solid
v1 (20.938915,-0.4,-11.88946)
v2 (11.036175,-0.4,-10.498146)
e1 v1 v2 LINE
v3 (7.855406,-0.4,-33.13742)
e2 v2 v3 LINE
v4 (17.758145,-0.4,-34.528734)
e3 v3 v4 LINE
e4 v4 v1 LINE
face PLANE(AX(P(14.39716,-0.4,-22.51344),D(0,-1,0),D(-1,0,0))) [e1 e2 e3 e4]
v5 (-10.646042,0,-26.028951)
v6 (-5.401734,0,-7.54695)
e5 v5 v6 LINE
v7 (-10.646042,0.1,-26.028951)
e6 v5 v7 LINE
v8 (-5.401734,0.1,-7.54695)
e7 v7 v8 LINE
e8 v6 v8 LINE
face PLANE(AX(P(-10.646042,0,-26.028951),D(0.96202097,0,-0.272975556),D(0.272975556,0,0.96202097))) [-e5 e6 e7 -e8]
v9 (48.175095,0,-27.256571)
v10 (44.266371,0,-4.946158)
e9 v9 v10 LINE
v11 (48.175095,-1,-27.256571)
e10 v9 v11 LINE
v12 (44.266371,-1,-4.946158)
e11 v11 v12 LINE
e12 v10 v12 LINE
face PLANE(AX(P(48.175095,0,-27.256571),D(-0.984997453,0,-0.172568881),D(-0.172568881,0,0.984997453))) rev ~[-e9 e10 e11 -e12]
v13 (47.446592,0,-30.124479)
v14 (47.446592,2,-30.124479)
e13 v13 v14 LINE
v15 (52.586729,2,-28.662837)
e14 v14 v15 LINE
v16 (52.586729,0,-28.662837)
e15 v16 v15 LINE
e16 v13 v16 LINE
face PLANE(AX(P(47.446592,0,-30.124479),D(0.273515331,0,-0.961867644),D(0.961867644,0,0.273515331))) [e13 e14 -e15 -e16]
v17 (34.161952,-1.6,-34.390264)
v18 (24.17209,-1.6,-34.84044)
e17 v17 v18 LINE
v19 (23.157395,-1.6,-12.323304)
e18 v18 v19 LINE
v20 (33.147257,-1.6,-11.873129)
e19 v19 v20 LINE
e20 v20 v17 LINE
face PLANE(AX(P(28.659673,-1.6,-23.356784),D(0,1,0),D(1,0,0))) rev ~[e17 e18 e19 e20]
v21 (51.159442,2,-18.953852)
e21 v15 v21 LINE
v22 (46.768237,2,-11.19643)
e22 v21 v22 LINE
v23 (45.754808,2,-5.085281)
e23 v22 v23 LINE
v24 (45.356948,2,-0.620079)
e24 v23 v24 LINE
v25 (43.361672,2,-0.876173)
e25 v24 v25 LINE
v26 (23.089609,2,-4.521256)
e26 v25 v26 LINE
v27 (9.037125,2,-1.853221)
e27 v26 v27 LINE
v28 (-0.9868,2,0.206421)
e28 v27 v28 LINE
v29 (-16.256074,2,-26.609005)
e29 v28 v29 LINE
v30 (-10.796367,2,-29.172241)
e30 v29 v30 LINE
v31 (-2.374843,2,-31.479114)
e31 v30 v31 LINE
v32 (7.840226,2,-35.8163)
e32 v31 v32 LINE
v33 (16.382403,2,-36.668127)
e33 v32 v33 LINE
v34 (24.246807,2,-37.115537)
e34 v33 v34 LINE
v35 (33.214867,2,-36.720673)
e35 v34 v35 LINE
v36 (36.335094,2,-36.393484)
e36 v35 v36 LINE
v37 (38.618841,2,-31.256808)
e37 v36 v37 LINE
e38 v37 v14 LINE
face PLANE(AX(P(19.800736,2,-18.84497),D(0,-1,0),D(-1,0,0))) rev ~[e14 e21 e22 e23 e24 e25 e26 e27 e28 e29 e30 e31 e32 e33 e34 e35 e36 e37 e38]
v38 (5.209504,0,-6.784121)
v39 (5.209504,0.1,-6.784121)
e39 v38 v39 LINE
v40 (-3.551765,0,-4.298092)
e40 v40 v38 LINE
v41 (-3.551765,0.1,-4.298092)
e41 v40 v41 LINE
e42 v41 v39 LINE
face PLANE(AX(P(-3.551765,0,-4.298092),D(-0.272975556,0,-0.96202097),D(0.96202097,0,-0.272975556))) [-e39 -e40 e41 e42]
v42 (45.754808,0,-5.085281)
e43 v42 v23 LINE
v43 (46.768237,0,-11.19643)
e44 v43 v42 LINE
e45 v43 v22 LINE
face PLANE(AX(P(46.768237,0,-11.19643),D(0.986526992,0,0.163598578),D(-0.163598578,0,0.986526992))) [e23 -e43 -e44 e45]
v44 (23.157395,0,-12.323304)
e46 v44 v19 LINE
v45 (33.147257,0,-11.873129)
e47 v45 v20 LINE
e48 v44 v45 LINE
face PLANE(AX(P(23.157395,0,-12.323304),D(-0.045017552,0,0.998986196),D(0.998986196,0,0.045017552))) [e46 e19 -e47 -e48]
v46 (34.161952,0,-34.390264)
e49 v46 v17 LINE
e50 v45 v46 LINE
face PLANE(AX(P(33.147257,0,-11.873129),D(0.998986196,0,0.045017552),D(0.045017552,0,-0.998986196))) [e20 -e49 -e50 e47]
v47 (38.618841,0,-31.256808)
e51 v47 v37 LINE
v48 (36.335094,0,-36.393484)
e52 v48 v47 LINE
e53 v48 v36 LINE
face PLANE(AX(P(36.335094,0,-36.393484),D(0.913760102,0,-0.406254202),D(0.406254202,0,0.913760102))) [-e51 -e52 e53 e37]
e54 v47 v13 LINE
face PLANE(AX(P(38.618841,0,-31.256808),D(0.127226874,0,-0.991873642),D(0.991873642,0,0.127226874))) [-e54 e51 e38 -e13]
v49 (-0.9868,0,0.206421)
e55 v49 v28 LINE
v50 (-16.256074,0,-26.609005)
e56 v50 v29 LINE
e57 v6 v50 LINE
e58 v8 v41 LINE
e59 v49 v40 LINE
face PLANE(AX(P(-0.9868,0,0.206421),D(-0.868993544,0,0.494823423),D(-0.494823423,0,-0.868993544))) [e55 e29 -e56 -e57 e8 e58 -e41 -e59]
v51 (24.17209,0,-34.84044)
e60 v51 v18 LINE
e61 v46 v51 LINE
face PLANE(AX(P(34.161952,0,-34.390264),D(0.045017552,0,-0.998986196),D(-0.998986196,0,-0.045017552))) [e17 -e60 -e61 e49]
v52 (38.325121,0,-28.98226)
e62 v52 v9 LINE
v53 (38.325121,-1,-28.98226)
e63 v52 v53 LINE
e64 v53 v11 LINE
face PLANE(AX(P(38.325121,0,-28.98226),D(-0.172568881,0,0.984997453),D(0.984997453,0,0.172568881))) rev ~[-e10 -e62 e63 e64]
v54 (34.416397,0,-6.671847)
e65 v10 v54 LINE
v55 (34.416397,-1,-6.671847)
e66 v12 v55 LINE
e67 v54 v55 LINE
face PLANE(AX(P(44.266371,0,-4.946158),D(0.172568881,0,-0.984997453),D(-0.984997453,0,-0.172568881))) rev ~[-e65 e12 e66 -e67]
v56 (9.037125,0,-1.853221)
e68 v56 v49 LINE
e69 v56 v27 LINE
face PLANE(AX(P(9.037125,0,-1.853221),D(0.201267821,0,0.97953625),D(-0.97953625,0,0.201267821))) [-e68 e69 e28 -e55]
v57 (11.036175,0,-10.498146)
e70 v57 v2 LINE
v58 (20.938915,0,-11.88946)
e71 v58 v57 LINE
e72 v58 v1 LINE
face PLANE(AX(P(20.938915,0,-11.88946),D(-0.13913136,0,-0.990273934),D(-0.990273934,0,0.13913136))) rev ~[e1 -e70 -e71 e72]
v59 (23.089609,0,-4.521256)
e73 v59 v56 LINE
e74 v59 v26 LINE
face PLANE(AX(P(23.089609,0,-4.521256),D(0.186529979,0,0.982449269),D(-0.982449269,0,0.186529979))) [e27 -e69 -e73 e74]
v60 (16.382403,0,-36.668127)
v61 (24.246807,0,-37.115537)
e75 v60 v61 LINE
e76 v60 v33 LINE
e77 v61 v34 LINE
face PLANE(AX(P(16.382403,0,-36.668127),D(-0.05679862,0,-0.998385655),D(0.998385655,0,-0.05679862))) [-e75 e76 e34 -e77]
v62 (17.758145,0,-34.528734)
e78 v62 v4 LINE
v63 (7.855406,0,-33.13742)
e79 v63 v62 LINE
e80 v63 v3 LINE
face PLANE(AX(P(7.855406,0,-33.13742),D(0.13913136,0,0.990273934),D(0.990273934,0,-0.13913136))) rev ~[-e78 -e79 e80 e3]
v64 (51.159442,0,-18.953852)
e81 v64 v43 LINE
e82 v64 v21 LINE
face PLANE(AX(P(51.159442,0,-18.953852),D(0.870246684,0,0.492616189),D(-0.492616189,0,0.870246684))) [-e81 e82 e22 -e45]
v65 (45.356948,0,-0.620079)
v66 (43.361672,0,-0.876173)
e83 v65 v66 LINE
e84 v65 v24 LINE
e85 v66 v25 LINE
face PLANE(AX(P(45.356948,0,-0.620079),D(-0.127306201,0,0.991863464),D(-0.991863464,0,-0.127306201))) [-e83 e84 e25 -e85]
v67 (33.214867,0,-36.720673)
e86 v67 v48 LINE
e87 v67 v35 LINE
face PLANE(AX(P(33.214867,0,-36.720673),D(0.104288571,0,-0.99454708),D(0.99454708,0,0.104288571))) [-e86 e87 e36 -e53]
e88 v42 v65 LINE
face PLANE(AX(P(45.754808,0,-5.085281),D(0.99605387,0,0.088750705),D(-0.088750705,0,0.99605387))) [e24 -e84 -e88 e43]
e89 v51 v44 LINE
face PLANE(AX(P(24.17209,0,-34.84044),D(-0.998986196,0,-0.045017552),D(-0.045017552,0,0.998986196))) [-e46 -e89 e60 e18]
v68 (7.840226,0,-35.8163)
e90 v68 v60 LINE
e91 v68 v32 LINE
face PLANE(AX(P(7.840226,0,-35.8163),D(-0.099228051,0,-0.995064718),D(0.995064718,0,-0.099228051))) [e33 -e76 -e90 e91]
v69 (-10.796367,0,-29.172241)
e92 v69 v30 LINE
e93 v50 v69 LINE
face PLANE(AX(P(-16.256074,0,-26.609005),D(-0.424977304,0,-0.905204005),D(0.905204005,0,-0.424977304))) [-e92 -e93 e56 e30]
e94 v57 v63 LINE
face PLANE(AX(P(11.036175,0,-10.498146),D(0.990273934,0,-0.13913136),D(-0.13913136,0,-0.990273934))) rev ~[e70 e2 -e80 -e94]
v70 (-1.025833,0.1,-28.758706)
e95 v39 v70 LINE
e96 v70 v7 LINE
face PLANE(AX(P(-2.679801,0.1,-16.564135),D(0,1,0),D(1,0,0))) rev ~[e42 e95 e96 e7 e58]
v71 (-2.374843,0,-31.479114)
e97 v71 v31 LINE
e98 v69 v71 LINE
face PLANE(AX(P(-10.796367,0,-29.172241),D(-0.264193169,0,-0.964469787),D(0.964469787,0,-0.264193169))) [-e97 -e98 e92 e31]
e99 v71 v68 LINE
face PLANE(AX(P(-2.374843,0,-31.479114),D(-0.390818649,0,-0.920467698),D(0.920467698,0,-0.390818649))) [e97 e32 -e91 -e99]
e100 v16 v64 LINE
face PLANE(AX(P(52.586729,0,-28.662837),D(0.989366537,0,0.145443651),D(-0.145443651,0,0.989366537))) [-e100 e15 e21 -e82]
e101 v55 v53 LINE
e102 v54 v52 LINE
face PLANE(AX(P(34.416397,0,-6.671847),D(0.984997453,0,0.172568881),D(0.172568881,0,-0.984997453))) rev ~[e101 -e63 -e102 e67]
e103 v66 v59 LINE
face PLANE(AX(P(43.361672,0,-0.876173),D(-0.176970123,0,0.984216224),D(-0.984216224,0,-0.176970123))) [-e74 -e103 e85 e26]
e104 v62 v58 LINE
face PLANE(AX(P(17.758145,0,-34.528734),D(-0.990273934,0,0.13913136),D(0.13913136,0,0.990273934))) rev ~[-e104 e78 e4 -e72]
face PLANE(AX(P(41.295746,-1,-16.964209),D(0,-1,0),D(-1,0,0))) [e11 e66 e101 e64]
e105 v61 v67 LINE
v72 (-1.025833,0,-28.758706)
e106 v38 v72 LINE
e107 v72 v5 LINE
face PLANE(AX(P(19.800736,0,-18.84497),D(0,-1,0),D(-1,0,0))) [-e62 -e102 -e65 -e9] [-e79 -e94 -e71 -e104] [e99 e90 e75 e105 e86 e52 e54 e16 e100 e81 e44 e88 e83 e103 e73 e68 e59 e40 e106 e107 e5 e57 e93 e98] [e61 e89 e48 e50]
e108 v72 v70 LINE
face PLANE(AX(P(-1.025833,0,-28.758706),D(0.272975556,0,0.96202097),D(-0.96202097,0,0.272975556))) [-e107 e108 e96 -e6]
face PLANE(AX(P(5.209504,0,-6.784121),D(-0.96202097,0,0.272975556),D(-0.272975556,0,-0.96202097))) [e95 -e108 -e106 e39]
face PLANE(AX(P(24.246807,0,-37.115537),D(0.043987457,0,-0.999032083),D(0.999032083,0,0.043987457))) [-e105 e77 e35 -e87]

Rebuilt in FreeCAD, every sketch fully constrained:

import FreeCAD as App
import Part
import Sketcher
Q = App.Units.Quantity

doc = App.newDocument("Part")
body = doc.addObject("PartDesign::Body", "Body")

# Sketch on XZ plane
sketch1 = body.newObject("Sketcher::SketchObject", "Sketch")
sketch1.AttachmentSupport = (doc.getObject("XZ_Plane"), [""])
sketch1.MapMode = "FlatFace"
sketch1.addGeometry([
    Part.LineSegment(App.Vector(-10.6, -26, 0), App.Vector(-5.4, -7.5, 0)),  # 0
    Part.LineSegment(App.Vector(-5.4, -7.5, 0), App.Vector(-3.6, -4.3, 0)),  # 1
    Part.LineSegment(App.Vector(-3.6, -4.3, 0), App.Vector(5.2, -6.8, 0)),  # 2
    Part.LineSegment(App.Vector(5.2, -6.8, 0), App.Vector(-1, -28.8, 0)),  # 3
    Part.LineSegment(App.Vector(-1, -28.8, 0), App.Vector(-10.6, -26, 0)),  # 4
], False)
sketch1.addConstraint([
    Sketcher.Constraint("Coincident", 0, 2, 1, 1),
    Sketcher.Constraint("Coincident", 1, 2, 2, 1),
    Sketcher.Constraint("Coincident", 2, 2, 3, 1),
    Sketcher.Constraint("Coincident", 3, 2, 4, 1),
    Sketcher.Constraint("Coincident", 4, 2, 0, 1),
    Sketcher.Constraint("Perpendicular", 0, 2),
    Sketcher.Constraint("Perpendicular", 2, 3),
    Sketcher.Constraint("Perpendicular", 3, 4),
    Sketcher.Constraint("Distance", 4, Q("10 mm")),
    Sketcher.Constraint("DistanceY", 4, 2, 0, 2, Q("18.482001 mm")),
    Sketcher.Constraint("DistanceX", 0, 2, 3, 2, Q("4.375901 mm")),
    Sketcher.Constraint("Distance", 2, Q("9.10715 mm")),
    Sketcher.Constraint("DistanceY", 0, 2, -1, 1, Q("7.54695 mm")),
    Sketcher.Constraint("DistanceY", 1, 2, -1, 1, Q("4.298092 mm")),
    Sketcher.Constraint("DistanceX", 0, 2, -1, 1, Q("5.401734 mm")),
])
pad1 = body.newObject("PartDesign::Pad", "Pad")
pad1.Profile = sketch1
pad1.Length = 0.1
pad1.Reversed = True
body2 = doc.addObject("PartDesign::Body", "Body001")

# Sketch on XZ plane
sketch2 = body2.newObject("Sketcher::SketchObject", "Sketch001")
sketch2.AttachmentSupport = (doc.getObject("XZ_Plane001"), [""])
sketch2.MapMode = "FlatFace"
sketch2.addGeometry([
    Part.LineSegment(App.Vector(8, -33, 0), App.Vector(11, -10, 0)),
    Part.LineSegment(App.Vector(11, -10, 0), App.Vector(21, -12, 0)),
    Part.LineSegment(App.Vector(21, -12, 0), App.Vector(18, -35, 0)),
    Part.LineSegment(App.Vector(18, -35, 0), App.Vector(8, -33, 0)),
], False)
sketch2.addConstraint([
    Sketcher.Constraint("Coincident", 0, 2, 1, 1),
    Sketcher.Constraint("Coincident", 1, 2, 2, 1),
    Sketcher.Constraint("Coincident", 2, 2, 3, 1),
    Sketcher.Constraint("Coincident", 3, 2, 0, 1),
    Sketcher.Constraint("Perpendicular", 0, 1),
    Sketcher.Constraint("Perpendicular", 1, 2),
    Sketcher.Constraint("Perpendicular", 2, 3),
    Sketcher.Constraint("Distance", 1, Q("10 mm")),
    Sketcher.Constraint("DistanceY", 1, 2, -1, 1, Q("11.88946 mm")),
    Sketcher.Constraint("DistanceY", 3, 2, -1, 1, Q("33.13742 mm")),
    Sketcher.Constraint("DistanceX", 0, 2, 1, 2, Q("9.902739 mm")),
    Sketcher.Constraint("DistanceX", -1, 1, 0, 2, Q("11.036175 mm")),
])
pad2 = body2.newObject("PartDesign::Pad", "Pad001")
pad2.Profile = sketch2
pad2.Length = 0.4
body3 = doc.addObject("PartDesign::Body", "Body002")

# Sketch on XZ plane
sketch3 = body3.newObject("Sketcher::SketchObject", "Sketch002")
sketch3.AttachmentSupport = (doc.getObject("XZ_Plane002"), [""])
sketch3.MapMode = "FlatFace"
sketch3.addGeometry([
    Part.LineSegment(App.Vector(33, -12, 0), App.Vector(34, -34, 0)),
    Part.LineSegment(App.Vector(34, -34, 0), App.Vector(24, -35, 0)),
    Part.LineSegment(App.Vector(24, -35, 0), App.Vector(23, -12, 0)),
    Part.LineSegment(App.Vector(23, -12, 0), App.Vector(33, -12, 0)),
], False)
sketch3.addConstraint([
    Sketcher.Constraint("Coincident", 0, 2, 1, 1),
    Sketcher.Constraint("Coincident", 1, 2, 2, 1),
    Sketcher.Constraint("Coincident", 2, 2, 3, 1),
    Sketcher.Constraint("Coincident", 3, 2, 0, 1),
    Sketcher.Constraint("Perpendicular", 0, 1),
    Sketcher.Constraint("Perpendicular", 1, 2),
    Sketcher.Constraint("Perpendicular", 2, 3),
    Sketcher.Constraint("Distance", 1, Q("10 mm")),
    Sketcher.Constraint("DistanceX", -1, 1, 0, 2, Q("34.161952 mm")),
    Sketcher.Constraint("DistanceX", -1, 1, 1, 2, Q("24.17209 mm")),
    Sketcher.Constraint("DistanceY", 1, 2, -1, 1, Q("34.84044 mm")),
    Sketcher.Constraint("DistanceY", 3, 2, -1, 1, Q("11.873129 mm")),
])
pad3 = body3.newObject("PartDesign::Pad", "Pad002")
pad3.Profile = sketch3
pad3.Length = 1.6
body4 = doc.addObject("PartDesign::Body", "Body003")

# Sketch on XZ plane
sketch4 = body4.newObject("Sketcher::SketchObject", "Sketch003")
sketch4.AttachmentSupport = (doc.getObject("XZ_Plane003"), [""])
sketch4.MapMode = "FlatFace"
sketch4.addGeometry([
    Part.LineSegment(App.Vector(38.325121, -28.98226, 0), App.Vector(34.416397, -6.671847, 0)),
    Part.LineSegment(App.Vector(34.416397, -6.671847, 0), App.Vector(44.266371, -4.946158, 0)),
    Part.LineSegment(App.Vector(44.266371, -4.946158, 0), App.Vector(48.175095, -27.256571, 0)),
    Part.LineSegment(App.Vector(48.175095, -27.256571, 0), App.Vector(38.325121, -28.98226, 0)),
], False)
sketch4.addConstraint([
    Sketcher.Constraint("Coincident", 0, 2, 1, 1),
    Sketcher.Constraint("Coincident", 1, 2, 2, 1),
    Sketcher.Constraint("Coincident", 2, 2, 3, 1),
    Sketcher.Constraint("Coincident", 3, 2, 0, 1),
    Sketcher.Constraint("Distance", 1, Q("10 mm")),
    Sketcher.Constraint("Distance", 3, Q("10 mm")),
    Sketcher.Constraint("DistanceX", 0, 2, 2, 2, Q("13.758698 mm")),
    Sketcher.Constraint("DistanceX", -1, 1, 1, 2, Q("44.266371 mm")),
    Sketcher.Constraint("DistanceY", 2, 2, -1, 1, Q("27.256571 mm")),
    Sketcher.Constraint("DistanceX", -1, 1, 3, 2, Q("38.325121 mm")),
    Sketcher.Constraint("DistanceY", 3, 2, -1, 1, Q("28.98226 mm")),
    Sketcher.Constraint("Distance", 0, Q("22.650225 mm")),
])
pad4 = body4.newObject("PartDesign::Pad", "Pad003")
pad4.Profile = sketch4
pad4.Length = 1
body.AllowCompound = True
doc.recompute()

boolean = body.newObject("PartDesign::Boolean", "Boolean")
boolean.Type = "Fuse"
boolean.addObjects([body2])
doc.recompute()

boolean2 = body.newObject("PartDesign::Boolean", "Boolean001")
boolean2.Type = "Fuse"
boolean2.addObjects([body3])
doc.recompute()

boolean3 = body.newObject("PartDesign::Boolean", "Boolean002")
boolean3.Type = "Fuse"
boolean3.addObjects([body4])

# Sketch on XZ plane
sketch5 = body.newObject("Sketcher::SketchObject", "Sketch004")
sketch5.AttachmentSupport = (doc.getObject("XZ_Plane"), [""])
sketch5.MapMode = "FlatFace"
sketch5.addGeometry([
    Part.LineSegment(App.Vector(-10.8, -29.2, 0), App.Vector(-16.3, -26.6, 0)),  # 0
    Part.LineSegment(App.Vector(-16.3, -26.6, 0), App.Vector(-1, 0.2, 0)),  # 1
    Part.LineSegment(App.Vector(-1, 0.2, 0), App.Vector(9, -1.9, 0)),  # 2
    Part.LineSegment(App.Vector(9, -1.9, 0), App.Vector(23.1, -4.5, 0)),  # 3
    Part.LineSegment(App.Vector(23.1, -4.5, 0), App.Vector(43.4, -0.9, 0)),  # 4
    Part.LineSegment(App.Vector(43.4, -0.9, 0), App.Vector(45.4, -0.6, 0)),  # 5
    Part.LineSegment(App.Vector(45.4, -0.6, 0), App.Vector(45.8, -5.1, 0)),  # 6
    Part.LineSegment(App.Vector(45.8, -5.1, 0), App.Vector(46.8, -11.2, 0)),  # 7
    Part.LineSegment(App.Vector(46.8, -11.2, 0), App.Vector(51.2, -19, 0)),  # 8
    Part.LineSegment(App.Vector(51.2, -19, 0), App.Vector(52.6, -28.7, 0)),  # 9
    Part.LineSegment(App.Vector(52.6, -28.7, 0), App.Vector(47.4, -30.1, 0)),  # 10
    Part.LineSegment(App.Vector(47.4, -30.1, 0), App.Vector(38.6, -31.3, 0)),  # 11
    Part.LineSegment(App.Vector(38.6, -31.3, 0), App.Vector(36.3, -36.4, 0)),  # 12
    Part.LineSegment(App.Vector(36.3, -36.4, 0), App.Vector(33.2, -36.7, 0)),  # 13
    Part.LineSegment(App.Vector(33.2, -36.7, 0), App.Vector(24.2, -37.1, 0)),  # 14
    Part.LineSegment(App.Vector(24.2, -37.1, 0), App.Vector(16.4, -36.7, 0)),  # 15
    Part.LineSegment(App.Vector(16.4, -36.7, 0), App.Vector(7.8, -35.8, 0)),  # 16
    Part.LineSegment(App.Vector(7.8, -35.8, 0), App.Vector(-2.4, -31.5, 0)),  # 17
    Part.LineSegment(App.Vector(-2.4, -31.5, 0), App.Vector(-10.8, -29.2, 0)),  # 18
], False)
sketch5.addConstraint([
    Sketcher.Constraint("Coincident", 0, 2, 1, 1),
    Sketcher.Constraint("Coincident", 1, 2, 2, 1),
    Sketcher.Constraint("Coincident", 2, 2, 3, 1),
    Sketcher.Constraint("Coincident", 3, 2, 4, 1),
    Sketcher.Constraint("Coincident", 4, 2, 5, 1),
    Sketcher.Constraint("Coincident", 5, 2, 6, 1),
    Sketcher.Constraint("Coincident", 6, 2, 7, 1),
    Sketcher.Constraint("Coincident", 7, 2, 8, 1),
    Sketcher.Constraint("Coincident", 8, 2, 9, 1),
    Sketcher.Constraint("Coincident", 9, 2, 10, 1),
    Sketcher.Constraint("Coincident", 10, 2, 11, 1),
    Sketcher.Constraint("Coincident", 11, 2, 12, 1),
    Sketcher.Constraint("Coincident", 12, 2, 13, 1),
    Sketcher.Constraint("Coincident", 13, 2, 14, 1),
    Sketcher.Constraint("Coincident", 14, 2, 15, 1),
    Sketcher.Constraint("Coincident", 15, 2, 16, 1),
    Sketcher.Constraint("Coincident", 16, 2, 17, 1),
    Sketcher.Constraint("Coincident", 17, 2, 18, 1),
    Sketcher.Constraint("Coincident", 18, 2, 0, 1),
    Sketcher.Constraint("DistanceX", 1, 2, -1, 1, Q("0.9868 mm")),
    Sketcher.Constraint("DistanceY", 16, 2, -1, 1, Q("35.8163 mm")),
    Sketcher.Constraint("DistanceX", 0, 2, 2, 2, Q("25.2932 mm")),
    Sketcher.Constraint("DistanceY", 5, 2, 1, 2, Q("0.8265 mm")),
    Sketcher.Constraint("DistanceX", 3, 2, 6, 2, Q("22.665199 mm")),
    Sketcher.Constraint("DistanceY", 6, 2, 1, 2, Q("5.291702 mm")),
    Sketcher.Constraint("DistanceY", 10, 2, 6, 2, Q("25.039198 mm")),
    Sketcher.Constraint("DistanceX", 11, 2, 8, 2, Q("12.540601 mm")),
    Sketcher.Constraint("DistanceY", 14, 2, 9, 2, Q("8.4527 mm")),
    Sketcher.Constraint("DistanceX", 0, 2, 16, 2, Q("24.0963 mm")),
    Sketcher.Constraint("Distance", 3, Q("14.30352 mm")),
    Sketcher.Constraint("Distance", 7, Q("6.194609 mm")),
    Sketcher.Constraint("Distance", 8, Q("8.914049 mm")),
    Sketcher.Constraint("Distance", 12, Q("5.621472 mm")),
    Sketcher.Constraint("Distance", 14, Q("8.976749 mm")),
    Sketcher.Constraint("Distance", 15, Q("7.87712 mm")),
    Sketcher.Constraint("DistanceY", -1, 1, 1, 2, Q("0.206421 mm")),
    Sketcher.Constraint("DistanceY", 2, 2, -1, 1, Q("1.853221 mm")),
    Sketcher.Constraint("DistanceX", -1, 1, 3, 2, Q("23.089609 mm")),
    Sketcher.Constraint("DistanceX", -1, 1, 4, 2, Q("43.361672 mm")),
    Sketcher.Constraint("DistanceY", 7, 2, -1, 1, Q("11.19643 mm")),
    Sketcher.Constraint("DistanceX", -1, 1, 8, 2, Q("51.159442 mm")),
    Sketcher.Constraint("DistanceX", -1, 1, 9, 2, Q("52.586729 mm")),
    Sketcher.Constraint("DistanceX", -1, 1, 10, 2, Q("47.446592 mm")),
    Sketcher.Constraint("DistanceY", 18, 2, -1, 1, Q("29.172241 mm")),
    Sketcher.Constraint("DistanceY", 0, 2, 3, 2, Q("22.087749 mm")),
    Sketcher.Constraint("DistanceY", 0, 2, 4, 2, Q("25.732832 mm")),
    Sketcher.Constraint("DistanceX", 3, 2, 5, 2, Q("22.267339 mm")),
    Sketcher.Constraint("DistanceX", 0, 2, 5, 2, Q("61.613022 mm")),
    Sketcher.Constraint("DistanceY", 9, 2, 5, 2, Q("28.042758 mm")),
    Sketcher.Constraint("DistanceY", 11, 2, 10, 2, Q("1.132329 mm")),
    Sketcher.Constraint("DistanceY", 13, 2, 12, 2, Q("0.327188 mm")),
    Sketcher.Constraint("DistanceX", 13, 2, 9, 2, Q("19.371862 mm")),
    Sketcher.Constraint("DistanceY", 13, 2, 8, 2, Q("17.766821 mm")),
    Sketcher.Constraint("DistanceY", 14, 2, 15, 2, Q("0.44741 mm")),
    Sketcher.Constraint("DistanceX", 17, 2, 16, 2, Q("10.215069 mm")),
    Sketcher.Constraint("DistanceY", 17, 2, 0, 2, Q("4.870109 mm")),
    Sketcher.Constraint("DistanceX", 18, 2, 15, 2, Q("27.17877 mm")),
])
pad5 = body.newObject("PartDesign::Pad", "Pad004")
pad5.Profile = sketch5
pad5.Length = 2
pad5.Reversed = True

# Sketch on XZ plane
sketch6 = body.newObject("Sketcher::SketchObject", "Sketch005")
sketch6.AttachmentSupport = (doc.getObject("XZ_Plane"), [""])
sketch6.MapMode = "FlatFace"
sketch6.addGeometry([
    Part.LineSegment(App.Vector(-10.6, -26, 0), App.Vector(-5.4, -7.5, 0)),  # 0
    Part.LineSegment(App.Vector(-5.4, -7.5, 0), App.Vector(-3.6, -4.3, 0)),  # 1
    Part.LineSegment(App.Vector(-3.6, -4.3, 0), App.Vector(5.2, -6.8, 0)),  # 2
    Part.LineSegment(App.Vector(5.2, -6.8, 0), App.Vector(-1, -28.8, 0)),  # 3
    Part.LineSegment(App.Vector(-1, -28.8, 0), App.Vector(-10.6, -26, 0)),  # 4
], False)
sketch6.addConstraint([
    Sketcher.Constraint("Coincident", 0, 2, 1, 1),
    Sketcher.Constraint("Coincident", 1, 2, 2, 1),
    Sketcher.Constraint("Coincident", 2, 2, 3, 1),
    Sketcher.Constraint("Coincident", 3, 2, 4, 1),
    Sketcher.Constraint("Coincident", 4, 2, 0, 1),
    Sketcher.Constraint("Perpendicular", 0, 2),
    Sketcher.Constraint("Perpendicular", 2, 3),
    Sketcher.Constraint("Perpendicular", 3, 4),
    Sketcher.Constraint("Distance", 4, Q("10 mm")),
    Sketcher.Constraint("DistanceY", 4, 2, 0, 2, Q("18.482001 mm")),
    Sketcher.Constraint("DistanceX", 0, 2, 3, 2, Q("4.375901 mm")),
    Sketcher.Constraint("Distance", 2, Q("9.10715 mm")),
    Sketcher.Constraint("DistanceY", 0, 2, -1, 1, Q("7.54695 mm")),
    Sketcher.Constraint("DistanceY", 1, 2, -1, 1, Q("4.298092 mm")),
    Sketcher.Constraint("DistanceX", 0, 2, -1, 1, Q("5.401734 mm")),
])
pocket1 = body.newObject("PartDesign::Pocket", "Pocket")
pocket1.Profile = sketch6
pocket1.Length = 0.1

doc.recompute()
